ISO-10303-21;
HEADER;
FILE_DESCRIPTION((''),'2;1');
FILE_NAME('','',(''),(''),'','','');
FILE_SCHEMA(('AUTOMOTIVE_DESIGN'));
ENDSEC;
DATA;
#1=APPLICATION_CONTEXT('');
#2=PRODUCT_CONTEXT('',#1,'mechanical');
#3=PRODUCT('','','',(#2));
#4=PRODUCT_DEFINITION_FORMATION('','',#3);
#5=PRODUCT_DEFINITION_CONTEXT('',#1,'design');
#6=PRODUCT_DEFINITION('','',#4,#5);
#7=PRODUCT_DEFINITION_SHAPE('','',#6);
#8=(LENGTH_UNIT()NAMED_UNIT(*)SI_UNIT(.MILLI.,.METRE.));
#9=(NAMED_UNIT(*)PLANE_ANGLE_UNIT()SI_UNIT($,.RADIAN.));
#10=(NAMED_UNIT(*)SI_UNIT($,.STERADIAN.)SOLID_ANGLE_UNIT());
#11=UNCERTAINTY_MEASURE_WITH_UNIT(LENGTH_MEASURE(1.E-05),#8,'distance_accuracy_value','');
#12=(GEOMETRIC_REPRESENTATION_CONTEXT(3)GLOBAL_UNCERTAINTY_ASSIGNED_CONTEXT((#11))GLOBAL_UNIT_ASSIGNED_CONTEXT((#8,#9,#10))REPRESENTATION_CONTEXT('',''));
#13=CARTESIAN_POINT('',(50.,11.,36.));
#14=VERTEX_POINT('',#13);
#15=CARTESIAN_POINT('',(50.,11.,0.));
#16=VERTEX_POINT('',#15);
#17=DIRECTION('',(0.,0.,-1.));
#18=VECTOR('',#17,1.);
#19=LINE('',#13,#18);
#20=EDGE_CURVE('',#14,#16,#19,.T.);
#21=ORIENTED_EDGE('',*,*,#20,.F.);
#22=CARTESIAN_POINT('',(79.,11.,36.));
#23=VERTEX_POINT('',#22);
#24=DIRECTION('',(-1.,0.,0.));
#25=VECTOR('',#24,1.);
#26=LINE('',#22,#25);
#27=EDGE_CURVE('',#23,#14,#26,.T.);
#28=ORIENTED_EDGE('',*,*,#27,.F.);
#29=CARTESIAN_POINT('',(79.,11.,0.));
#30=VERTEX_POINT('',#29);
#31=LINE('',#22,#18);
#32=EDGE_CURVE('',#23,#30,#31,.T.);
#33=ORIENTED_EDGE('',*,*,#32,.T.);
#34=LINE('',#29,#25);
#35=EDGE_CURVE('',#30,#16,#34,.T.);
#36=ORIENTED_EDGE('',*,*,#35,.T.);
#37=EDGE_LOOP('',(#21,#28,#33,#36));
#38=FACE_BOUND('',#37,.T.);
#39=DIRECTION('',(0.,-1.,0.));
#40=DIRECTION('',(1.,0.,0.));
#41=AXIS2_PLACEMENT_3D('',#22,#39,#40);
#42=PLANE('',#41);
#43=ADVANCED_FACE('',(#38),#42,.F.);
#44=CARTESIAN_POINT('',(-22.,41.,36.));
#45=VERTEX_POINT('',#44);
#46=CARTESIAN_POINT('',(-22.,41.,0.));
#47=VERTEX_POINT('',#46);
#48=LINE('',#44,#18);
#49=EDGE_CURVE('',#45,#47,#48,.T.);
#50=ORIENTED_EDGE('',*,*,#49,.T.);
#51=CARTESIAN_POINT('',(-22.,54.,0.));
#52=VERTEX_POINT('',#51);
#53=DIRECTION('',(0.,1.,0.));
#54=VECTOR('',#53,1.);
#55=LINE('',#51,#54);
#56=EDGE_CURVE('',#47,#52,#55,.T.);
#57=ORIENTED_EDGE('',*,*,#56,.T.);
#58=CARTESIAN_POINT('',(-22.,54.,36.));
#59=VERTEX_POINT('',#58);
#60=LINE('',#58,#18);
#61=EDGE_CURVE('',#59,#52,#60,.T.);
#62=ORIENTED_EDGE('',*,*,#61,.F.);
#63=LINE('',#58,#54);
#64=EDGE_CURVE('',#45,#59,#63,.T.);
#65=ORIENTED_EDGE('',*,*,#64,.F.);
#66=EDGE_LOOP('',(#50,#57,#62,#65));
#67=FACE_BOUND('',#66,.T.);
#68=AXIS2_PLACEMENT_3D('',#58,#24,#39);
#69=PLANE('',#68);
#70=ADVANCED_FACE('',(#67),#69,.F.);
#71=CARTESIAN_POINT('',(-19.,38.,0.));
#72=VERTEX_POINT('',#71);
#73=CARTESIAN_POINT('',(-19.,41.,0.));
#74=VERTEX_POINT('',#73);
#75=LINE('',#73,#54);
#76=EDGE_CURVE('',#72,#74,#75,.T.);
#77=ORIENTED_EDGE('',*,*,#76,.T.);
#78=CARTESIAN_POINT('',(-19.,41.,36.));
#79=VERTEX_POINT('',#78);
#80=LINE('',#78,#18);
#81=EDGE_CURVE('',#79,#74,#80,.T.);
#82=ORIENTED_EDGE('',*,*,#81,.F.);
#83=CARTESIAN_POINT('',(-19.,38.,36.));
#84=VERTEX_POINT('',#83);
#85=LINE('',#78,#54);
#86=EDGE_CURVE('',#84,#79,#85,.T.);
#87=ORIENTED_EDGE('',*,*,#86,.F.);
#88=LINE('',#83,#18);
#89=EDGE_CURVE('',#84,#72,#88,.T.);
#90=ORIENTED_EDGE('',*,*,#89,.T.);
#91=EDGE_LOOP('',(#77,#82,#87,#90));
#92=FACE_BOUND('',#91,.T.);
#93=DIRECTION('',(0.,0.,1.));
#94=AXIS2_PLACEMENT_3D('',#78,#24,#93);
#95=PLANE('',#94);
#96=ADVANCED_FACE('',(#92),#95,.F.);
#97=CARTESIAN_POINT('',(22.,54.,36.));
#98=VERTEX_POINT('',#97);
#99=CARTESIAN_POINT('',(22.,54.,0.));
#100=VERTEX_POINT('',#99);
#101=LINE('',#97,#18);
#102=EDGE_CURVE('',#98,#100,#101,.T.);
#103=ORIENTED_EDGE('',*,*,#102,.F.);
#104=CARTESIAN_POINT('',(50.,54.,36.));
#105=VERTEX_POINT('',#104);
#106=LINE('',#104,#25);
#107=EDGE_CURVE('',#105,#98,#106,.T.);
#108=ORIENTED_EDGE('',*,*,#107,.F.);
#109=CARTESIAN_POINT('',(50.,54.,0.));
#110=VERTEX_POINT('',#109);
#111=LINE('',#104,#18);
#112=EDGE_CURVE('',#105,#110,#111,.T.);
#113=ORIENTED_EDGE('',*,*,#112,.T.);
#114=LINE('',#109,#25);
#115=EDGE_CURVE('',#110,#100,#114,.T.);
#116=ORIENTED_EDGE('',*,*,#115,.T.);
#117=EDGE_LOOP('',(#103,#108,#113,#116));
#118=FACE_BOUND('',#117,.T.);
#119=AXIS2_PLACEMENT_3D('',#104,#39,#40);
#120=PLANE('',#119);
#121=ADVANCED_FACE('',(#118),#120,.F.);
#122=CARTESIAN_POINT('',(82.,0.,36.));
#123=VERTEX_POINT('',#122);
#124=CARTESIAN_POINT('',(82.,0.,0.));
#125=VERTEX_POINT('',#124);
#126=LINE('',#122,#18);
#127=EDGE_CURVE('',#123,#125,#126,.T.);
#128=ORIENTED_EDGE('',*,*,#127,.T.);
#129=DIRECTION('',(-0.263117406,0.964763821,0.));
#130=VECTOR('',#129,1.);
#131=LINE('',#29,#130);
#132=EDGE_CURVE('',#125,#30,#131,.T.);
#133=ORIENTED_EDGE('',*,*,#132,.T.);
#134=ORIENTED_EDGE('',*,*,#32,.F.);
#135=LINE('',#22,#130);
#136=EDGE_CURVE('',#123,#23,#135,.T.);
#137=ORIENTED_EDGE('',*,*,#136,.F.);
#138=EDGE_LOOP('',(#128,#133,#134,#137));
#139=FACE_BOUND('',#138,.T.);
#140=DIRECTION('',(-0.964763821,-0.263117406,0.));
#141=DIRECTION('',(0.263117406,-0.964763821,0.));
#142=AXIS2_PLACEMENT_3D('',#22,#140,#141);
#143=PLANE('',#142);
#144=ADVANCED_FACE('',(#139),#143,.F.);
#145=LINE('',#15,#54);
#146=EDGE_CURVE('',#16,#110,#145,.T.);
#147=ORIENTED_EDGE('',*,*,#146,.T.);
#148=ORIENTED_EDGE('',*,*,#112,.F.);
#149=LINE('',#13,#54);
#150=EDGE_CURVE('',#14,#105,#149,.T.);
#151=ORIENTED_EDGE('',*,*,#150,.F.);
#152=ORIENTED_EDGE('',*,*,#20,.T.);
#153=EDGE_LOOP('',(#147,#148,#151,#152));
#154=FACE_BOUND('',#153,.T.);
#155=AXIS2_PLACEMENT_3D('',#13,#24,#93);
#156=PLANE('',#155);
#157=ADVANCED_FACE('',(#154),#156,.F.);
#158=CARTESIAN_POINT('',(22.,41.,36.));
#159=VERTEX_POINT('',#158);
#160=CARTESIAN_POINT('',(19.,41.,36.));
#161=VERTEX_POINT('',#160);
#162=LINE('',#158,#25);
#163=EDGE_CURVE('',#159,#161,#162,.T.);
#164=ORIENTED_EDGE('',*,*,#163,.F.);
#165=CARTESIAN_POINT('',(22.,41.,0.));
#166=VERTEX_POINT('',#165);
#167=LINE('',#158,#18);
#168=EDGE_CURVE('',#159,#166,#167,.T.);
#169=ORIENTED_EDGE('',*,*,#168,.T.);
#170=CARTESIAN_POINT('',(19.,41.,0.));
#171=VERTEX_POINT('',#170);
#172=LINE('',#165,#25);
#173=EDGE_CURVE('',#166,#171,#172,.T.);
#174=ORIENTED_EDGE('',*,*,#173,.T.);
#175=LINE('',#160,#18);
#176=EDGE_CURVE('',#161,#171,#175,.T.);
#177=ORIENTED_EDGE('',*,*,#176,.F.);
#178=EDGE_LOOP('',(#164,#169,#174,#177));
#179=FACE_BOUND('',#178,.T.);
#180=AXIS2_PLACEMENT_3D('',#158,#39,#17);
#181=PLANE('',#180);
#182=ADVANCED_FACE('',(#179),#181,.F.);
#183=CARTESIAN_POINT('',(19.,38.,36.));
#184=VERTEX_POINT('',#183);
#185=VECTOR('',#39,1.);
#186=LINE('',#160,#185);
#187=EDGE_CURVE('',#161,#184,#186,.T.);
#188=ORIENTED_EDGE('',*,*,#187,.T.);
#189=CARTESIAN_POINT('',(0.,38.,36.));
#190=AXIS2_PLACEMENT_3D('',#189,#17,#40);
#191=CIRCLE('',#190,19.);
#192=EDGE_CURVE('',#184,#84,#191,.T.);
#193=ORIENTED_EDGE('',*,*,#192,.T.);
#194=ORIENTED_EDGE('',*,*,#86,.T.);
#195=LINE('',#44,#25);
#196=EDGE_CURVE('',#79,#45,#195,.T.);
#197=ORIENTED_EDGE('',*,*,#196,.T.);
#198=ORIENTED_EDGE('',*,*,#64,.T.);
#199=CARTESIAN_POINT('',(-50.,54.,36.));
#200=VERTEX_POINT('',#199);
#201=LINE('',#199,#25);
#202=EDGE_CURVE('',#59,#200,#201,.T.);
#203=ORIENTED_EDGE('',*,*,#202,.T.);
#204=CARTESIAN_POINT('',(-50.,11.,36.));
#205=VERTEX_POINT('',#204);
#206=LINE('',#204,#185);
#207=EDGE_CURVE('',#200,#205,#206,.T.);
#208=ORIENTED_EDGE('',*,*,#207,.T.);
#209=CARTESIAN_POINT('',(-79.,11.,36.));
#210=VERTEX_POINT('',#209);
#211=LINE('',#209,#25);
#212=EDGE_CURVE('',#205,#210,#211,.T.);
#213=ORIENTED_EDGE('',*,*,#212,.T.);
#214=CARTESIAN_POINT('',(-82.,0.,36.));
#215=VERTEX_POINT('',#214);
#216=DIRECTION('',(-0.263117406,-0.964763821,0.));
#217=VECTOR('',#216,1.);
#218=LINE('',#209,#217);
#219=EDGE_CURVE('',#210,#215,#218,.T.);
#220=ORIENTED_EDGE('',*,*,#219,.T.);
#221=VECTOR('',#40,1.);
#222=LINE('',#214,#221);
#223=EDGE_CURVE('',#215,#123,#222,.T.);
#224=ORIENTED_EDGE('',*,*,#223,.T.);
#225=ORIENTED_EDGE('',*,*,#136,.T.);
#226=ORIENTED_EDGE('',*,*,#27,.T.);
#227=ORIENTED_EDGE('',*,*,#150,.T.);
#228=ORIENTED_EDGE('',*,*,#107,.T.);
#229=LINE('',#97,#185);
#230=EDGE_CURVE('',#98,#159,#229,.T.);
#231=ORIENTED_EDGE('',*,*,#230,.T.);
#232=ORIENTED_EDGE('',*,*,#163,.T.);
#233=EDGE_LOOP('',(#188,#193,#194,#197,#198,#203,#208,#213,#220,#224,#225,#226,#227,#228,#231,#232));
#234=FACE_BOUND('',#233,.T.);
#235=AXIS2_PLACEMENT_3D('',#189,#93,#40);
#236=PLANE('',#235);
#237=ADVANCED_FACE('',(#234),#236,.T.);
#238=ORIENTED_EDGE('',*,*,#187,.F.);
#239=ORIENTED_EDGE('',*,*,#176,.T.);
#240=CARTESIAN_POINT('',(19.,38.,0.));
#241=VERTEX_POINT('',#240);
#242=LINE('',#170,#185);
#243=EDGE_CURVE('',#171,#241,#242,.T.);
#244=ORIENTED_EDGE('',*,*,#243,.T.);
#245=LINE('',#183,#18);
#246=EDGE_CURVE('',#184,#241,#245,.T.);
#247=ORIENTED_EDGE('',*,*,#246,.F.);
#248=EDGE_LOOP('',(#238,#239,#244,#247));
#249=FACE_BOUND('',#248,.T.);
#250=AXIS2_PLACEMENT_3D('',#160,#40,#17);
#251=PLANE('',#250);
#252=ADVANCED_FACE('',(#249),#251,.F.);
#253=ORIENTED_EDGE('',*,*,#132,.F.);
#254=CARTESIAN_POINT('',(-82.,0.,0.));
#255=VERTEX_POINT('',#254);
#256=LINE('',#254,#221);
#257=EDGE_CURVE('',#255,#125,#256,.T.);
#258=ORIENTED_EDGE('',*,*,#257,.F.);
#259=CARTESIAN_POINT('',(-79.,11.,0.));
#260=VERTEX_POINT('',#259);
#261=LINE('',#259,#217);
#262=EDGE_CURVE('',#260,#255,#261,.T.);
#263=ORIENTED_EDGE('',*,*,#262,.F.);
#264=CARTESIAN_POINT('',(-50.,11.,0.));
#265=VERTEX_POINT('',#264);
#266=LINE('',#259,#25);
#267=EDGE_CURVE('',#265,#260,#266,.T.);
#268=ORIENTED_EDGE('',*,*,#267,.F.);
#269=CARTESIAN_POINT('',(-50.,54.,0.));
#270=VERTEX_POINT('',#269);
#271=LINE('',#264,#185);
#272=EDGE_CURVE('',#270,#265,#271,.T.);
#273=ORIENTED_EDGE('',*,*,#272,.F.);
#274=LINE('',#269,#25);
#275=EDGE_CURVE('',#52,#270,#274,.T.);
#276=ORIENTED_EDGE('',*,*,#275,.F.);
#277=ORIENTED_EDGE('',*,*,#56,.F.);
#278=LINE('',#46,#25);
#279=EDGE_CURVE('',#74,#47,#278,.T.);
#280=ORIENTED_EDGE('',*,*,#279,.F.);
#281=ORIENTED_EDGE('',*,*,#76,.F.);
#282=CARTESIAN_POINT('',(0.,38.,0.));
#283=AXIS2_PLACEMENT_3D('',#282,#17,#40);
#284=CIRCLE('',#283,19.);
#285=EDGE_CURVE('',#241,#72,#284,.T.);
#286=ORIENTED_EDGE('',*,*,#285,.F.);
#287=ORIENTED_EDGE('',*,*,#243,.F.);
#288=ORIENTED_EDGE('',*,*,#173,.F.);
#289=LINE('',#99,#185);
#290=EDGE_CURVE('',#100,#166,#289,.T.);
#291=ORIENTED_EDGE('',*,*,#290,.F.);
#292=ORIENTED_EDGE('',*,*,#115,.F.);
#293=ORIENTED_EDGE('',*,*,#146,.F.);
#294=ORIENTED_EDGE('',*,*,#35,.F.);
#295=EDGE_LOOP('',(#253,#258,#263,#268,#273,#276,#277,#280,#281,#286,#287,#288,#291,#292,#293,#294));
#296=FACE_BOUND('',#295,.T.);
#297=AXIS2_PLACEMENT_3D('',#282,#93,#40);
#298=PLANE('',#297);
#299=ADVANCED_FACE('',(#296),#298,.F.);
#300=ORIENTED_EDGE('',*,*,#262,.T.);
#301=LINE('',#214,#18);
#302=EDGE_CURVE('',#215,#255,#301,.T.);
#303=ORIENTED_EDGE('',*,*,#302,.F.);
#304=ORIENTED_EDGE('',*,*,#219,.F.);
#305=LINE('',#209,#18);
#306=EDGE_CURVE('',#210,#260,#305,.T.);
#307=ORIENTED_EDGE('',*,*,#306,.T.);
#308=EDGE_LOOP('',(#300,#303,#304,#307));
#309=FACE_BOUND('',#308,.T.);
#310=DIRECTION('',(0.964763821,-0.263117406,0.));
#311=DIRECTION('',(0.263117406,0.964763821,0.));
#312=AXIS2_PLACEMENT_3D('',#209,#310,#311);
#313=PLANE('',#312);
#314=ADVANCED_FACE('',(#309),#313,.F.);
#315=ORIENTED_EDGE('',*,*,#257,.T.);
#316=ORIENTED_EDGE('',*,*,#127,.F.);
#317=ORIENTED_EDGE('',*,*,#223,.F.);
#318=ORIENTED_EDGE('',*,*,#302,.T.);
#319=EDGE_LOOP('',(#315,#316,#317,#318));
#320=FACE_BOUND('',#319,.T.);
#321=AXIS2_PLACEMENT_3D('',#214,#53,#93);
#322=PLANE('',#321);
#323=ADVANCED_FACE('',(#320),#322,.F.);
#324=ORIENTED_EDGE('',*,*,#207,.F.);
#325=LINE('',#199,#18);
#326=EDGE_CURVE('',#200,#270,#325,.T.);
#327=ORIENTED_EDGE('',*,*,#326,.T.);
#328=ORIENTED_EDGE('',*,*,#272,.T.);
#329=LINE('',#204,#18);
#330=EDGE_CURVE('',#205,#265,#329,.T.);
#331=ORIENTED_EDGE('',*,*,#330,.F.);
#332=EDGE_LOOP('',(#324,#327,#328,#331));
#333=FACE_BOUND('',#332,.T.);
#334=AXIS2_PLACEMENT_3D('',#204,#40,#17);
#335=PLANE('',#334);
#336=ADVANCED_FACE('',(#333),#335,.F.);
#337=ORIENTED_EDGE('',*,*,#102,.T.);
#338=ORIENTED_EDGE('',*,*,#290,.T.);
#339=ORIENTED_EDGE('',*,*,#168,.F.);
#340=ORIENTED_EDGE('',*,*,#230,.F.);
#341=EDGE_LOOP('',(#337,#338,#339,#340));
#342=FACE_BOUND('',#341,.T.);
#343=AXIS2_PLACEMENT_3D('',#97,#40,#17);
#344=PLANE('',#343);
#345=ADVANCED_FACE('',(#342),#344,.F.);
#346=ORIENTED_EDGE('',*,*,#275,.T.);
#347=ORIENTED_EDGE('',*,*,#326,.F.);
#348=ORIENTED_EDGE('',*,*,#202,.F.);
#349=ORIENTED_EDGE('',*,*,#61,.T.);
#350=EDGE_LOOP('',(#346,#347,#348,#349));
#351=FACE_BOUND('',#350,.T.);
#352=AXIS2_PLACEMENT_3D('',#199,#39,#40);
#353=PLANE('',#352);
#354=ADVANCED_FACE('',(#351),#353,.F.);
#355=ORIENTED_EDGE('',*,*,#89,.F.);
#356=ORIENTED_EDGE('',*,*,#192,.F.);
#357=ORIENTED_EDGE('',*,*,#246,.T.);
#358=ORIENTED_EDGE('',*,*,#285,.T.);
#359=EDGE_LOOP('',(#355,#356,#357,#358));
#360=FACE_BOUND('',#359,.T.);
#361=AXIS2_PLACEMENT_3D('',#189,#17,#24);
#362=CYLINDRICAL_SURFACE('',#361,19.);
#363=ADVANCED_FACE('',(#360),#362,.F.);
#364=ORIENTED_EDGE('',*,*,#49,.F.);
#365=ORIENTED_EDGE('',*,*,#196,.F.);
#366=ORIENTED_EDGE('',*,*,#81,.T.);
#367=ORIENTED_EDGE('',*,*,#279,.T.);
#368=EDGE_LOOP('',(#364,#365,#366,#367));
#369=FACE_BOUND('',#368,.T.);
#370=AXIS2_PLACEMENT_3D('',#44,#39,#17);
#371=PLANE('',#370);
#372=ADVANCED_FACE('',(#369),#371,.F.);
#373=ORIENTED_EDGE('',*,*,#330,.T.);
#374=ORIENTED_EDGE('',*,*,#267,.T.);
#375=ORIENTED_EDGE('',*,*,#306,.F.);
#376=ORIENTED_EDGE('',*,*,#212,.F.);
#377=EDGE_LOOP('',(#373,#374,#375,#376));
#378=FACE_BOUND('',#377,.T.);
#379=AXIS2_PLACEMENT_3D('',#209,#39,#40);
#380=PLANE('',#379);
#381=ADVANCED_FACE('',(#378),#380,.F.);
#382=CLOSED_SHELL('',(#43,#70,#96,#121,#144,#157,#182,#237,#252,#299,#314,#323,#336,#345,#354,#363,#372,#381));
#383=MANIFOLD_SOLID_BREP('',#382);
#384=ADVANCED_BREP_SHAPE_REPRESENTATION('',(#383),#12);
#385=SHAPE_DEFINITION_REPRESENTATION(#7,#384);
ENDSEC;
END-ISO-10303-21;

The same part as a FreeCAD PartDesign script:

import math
import FreeCAD as App
import Part
import Sketcher
Q = App.Units.Quantity

doc = App.newDocument("Part")
body = doc.addObject("PartDesign::Body", "Body")

# Sketch on XY plane
sketch1 = doc.addObject("Sketcher::SketchObject", "Sketch")
body.addObject(sketch1)
sketch1.AttachmentSupport = (doc.XY_Plane, [""])
sketch1.MapMode = "FlatFace"
sketch1.addGeometry([
    Part.LineSegment(App.Vector(-82, 0, 0), App.Vector(82, 0, 0)),  # 0
    Part.LineSegment(App.Vector(82, 0, 0), App.Vector(79, 11, 0)),  # 1
    Part.LineSegment(App.Vector(79, 11, 0), App.Vector(50, 11, 0)),  # 2
    Part.LineSegment(App.Vector(50, 11, 0), App.Vector(50, 54, 0)),  # 3
    Part.LineSegment(App.Vector(50, 54, 0), App.Vector(22, 54, 0)),  # 4
    Part.LineSegment(App.Vector(22, 54, 0), App.Vector(22, 41, 0)),  # 5
    Part.LineSegment(App.Vector(22, 41, 0), App.Vector(19, 41, 0)),  # 6
    Part.LineSegment(App.Vector(19, 41, 0), App.Vector(19, 38, 0)),  # 7
    Part.ArcOfCircle(Part.Circle(App.Vector(0, 38, 0), App.Vector(0, 0, 1), 19), math.radians(180), math.radians(360)),  # 8
    Part.LineSegment(App.Vector(-19, 38, 0), App.Vector(-19, 41, 0)),  # 9
    Part.LineSegment(App.Vector(-19, 41, 0), App.Vector(-22, 41, 0)),  # 10
    Part.LineSegment(App.Vector(-22, 41, 0), App.Vector(-22, 54, 0)),  # 11
    Part.LineSegment(App.Vector(-22, 54, 0), App.Vector(-50, 54, 0)),  # 12
    Part.LineSegment(App.Vector(-50, 54, 0), App.Vector(-50, 11, 0)),  # 13
    Part.LineSegment(App.Vector(-50, 11, 0), App.Vector(-79, 11, 0)),  # 14
    Part.LineSegment(App.Vector(-79, 11, 0), App.Vector(-82, 0, 0)),  # 15
], False)
sketch1.addConstraint([
    Sketcher.Constraint("Coincident", 0, 2, 1, 1),
    Sketcher.Constraint("Coincident", 1, 2, 2, 1),
    Sketcher.Constraint("Coincident", 2, 2, 3, 1),
    Sketcher.Constraint("Coincident", 3, 2, 4, 1),
    Sketcher.Constraint("Coincident", 4, 2, 5, 1),
    Sketcher.Constraint("Coincident", 5, 2, 6, 1),
    Sketcher.Constraint("Coincident", 6, 2, 7, 1),
    Sketcher.Constraint("Tangent", 7, 2, 8, 2),
    Sketcher.Constraint("Tangent", 8, 1, 9, 1),
    Sketcher.Constraint("Coincident", 9, 2, 10, 1),
    Sketcher.Constraint("Coincident", 10, 2, 11, 1),
    Sketcher.Constraint("Coincident", 11, 2, 12, 1),
    Sketcher.Constraint("Coincident", 12, 2, 13, 1),
    Sketcher.Constraint("Coincident", 13, 2, 14, 1),
    Sketcher.Constraint("Coincident", 14, 2, 15, 1),
    Sketcher.Constraint("Coincident", 15, 2, 0, 1),
    Sketcher.Constraint("Horizontal", 0),
    Sketcher.Constraint("Horizontal", 2),
    Sketcher.Constraint("Vertical", 3),
    Sketcher.Constraint("Horizontal", 4),
    Sketcher.Constraint("Vertical", 5),
    Sketcher.Constraint("Horizontal", 6),
    Sketcher.Constraint("Vertical", 7),
    Sketcher.Constraint("Vertical", 9),
    Sketcher.Constraint("Horizontal", 10),
    Sketcher.Constraint("Vertical", 11),
    Sketcher.Constraint("Horizontal", 12),
    Sketcher.Constraint("Vertical", 13),
    Sketcher.Constraint("Horizontal", 14),
    Sketcher.Constraint("Symmetric", 0, 2, 15, 2, -1, 1),
    Sketcher.Constraint("Symmetric", 6, 2, 9, 2, -2),
    Sketcher.Constraint("Symmetric", 4, 2, 11, 2, -2),
    Sketcher.Constraint("Symmetric", 2, 2, 13, 2, -2),
    Sketcher.Constraint("Equal", 2, 14),
    Sketcher.Constraint("Equal", 10, 7),
    Sketcher.Constraint("Radius", 8, Q("19 mm")),
    Sketcher.Constraint("DistanceX", 0, 1, 0, 2, Q("164 mm")),
    Sketcher.Constraint("DistanceX", 2, 2, 2, 1, Q("29 mm")),
    Sketcher.Constraint("DistanceX", 4, 2, 4, 1, Q("28 mm")),
    Sketcher.Constraint("DistanceX", 6, 2, 6, 1, Q("3 mm")),
    Sketcher.Constraint("DistanceY", 3, 1, 3, 2, Q("43 mm")),
    Sketcher.Constraint("DistanceY", 5, 2, 5, 1, Q("13 mm")),
    Sketcher.Constraint("DistanceY", -1, 1, 8, 3, Q("38 mm")),
])
pad1 = doc.addObject("PartDesign::Pad", "Pad")
body.addObject(pad1)
pad1.Profile = sketch1
pad1.Length = 36

doc.recompute()
